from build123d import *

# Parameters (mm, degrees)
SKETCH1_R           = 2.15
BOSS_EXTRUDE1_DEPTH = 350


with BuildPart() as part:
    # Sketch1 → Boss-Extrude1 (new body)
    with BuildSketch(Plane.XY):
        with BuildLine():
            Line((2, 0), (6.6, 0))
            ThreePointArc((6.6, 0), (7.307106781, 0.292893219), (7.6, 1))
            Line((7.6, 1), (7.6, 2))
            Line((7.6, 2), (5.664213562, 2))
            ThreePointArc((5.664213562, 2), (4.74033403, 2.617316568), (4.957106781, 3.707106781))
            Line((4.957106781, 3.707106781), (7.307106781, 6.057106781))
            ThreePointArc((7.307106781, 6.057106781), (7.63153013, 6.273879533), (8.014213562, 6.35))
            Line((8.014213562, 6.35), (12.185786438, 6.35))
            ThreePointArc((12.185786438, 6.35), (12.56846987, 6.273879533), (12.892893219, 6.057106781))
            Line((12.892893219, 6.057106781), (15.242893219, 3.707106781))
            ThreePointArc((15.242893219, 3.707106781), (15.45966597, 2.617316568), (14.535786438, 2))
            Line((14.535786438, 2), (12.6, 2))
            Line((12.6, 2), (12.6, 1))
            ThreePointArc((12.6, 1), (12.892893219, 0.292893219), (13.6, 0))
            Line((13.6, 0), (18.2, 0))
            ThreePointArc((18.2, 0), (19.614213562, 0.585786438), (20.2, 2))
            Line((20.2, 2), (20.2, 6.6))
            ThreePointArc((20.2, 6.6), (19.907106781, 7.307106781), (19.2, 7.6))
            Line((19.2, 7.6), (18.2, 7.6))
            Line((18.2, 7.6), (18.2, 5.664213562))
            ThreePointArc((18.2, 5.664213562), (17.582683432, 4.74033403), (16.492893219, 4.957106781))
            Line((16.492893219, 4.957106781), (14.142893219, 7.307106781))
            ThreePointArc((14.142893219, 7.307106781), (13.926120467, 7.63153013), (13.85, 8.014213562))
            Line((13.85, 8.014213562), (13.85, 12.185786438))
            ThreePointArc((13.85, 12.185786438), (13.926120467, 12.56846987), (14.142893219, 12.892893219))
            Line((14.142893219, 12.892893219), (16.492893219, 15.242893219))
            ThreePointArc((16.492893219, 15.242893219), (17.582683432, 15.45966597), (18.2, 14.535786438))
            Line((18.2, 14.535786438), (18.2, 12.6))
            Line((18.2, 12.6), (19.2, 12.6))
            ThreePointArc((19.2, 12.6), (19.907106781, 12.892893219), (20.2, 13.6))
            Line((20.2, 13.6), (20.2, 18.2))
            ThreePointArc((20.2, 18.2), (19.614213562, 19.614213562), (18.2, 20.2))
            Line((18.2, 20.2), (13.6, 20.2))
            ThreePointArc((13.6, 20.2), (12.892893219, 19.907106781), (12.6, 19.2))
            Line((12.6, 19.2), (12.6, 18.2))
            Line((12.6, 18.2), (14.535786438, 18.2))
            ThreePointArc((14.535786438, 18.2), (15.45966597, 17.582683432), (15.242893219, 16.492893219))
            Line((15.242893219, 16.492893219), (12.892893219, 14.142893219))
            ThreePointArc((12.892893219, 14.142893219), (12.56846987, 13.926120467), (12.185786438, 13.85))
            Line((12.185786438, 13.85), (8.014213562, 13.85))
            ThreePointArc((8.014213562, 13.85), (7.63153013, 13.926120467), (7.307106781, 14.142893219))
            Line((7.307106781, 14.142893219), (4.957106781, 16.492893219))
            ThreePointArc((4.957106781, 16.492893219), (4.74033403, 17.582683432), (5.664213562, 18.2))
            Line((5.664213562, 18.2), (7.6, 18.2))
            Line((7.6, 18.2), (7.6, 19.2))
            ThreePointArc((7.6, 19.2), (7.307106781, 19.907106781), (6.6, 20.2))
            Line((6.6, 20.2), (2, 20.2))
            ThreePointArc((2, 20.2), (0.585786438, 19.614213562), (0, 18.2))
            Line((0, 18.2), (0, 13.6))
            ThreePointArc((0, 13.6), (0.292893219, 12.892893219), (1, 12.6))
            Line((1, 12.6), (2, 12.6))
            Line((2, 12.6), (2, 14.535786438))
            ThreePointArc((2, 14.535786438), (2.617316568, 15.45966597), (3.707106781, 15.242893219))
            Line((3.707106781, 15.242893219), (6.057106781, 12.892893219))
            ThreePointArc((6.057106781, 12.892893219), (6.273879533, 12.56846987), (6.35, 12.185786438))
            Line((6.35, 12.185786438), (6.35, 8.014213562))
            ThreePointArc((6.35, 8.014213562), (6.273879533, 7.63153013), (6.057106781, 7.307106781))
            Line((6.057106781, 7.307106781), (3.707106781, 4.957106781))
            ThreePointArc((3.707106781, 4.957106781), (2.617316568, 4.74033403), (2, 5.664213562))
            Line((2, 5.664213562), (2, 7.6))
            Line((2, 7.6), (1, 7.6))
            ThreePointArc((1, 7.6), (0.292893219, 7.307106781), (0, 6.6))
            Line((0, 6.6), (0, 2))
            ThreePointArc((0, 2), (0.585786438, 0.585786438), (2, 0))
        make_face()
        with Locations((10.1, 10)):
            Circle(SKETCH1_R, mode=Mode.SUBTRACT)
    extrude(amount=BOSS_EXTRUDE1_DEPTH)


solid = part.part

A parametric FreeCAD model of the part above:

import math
import FreeCAD as App
import Part
import Sketcher

V = App.Vector

doc = App.newDocument("Part")
body = doc.addObject("PartDesign::Body", "Body")

sketch1 = body.newObject("Sketcher::SketchObject", "Sketch")
sketch1.AttachmentSupport = (doc.getObject("XY_Plane"), [""])
sketch1.MapMode = "FlatFace"
sketch1.addGeometry(Part.LineSegment(V(2, 0, 0), V(6.6, 0, 0)), False)
sketch1.addGeometry(Part.ArcOfCircle(Part.Circle(V(6.6, 1, 0), V(0, 0, 1), 1), math.radians(-90), math.radians(0)), False)
sketch1.addGeometry(Part.LineSegment(V(7.6, 1, 0), V(7.6, 2, 0)), False)
sketch1.addGeometry(Part.LineSegment(V(7.6, 2, 0), V(5.664214, 2, 0)), False)
sketch1.addGeometry(Part.ArcOfCircle(Part.Circle(V(5.664214, 3, 0), V(0, 0, 1), 1), math.radians(135), math.radians(270)), False)
sketch1.addGeometry(Part.LineSegment(V(4.957107, 3.707107, 0), V(7.307107, 6.057107, 0)), False)
sketch1.addGeometry(Part.ArcOfCircle(Part.Circle(V(8.014214, 5.35, 0), V(0, 0, 1), 1), math.radians(90), math.radians(135)), False)
sketch1.addGeometry(Part.LineSegment(V(8.014214, 6.35, 0), V(12.185786, 6.35, 0)), False)
sketch1.addGeometry(Part.ArcOfCircle(Part.Circle(V(12.185786, 5.35, 0), V(0, 0, 1), 1), math.radians(45), math.radians(90)), False)
sketch1.addGeometry(Part.LineSegment(V(12.892893, 6.057107, 0), V(15.242893, 3.707107, 0)), False)
sketch1.addGeometry(Part.ArcOfCircle(Part.Circle(V(14.535786, 3, 0), V(0, 0, 1), 1), math.radians(-90), math.radians(45)), False)
sketch1.addGeometry(Part.LineSegment(V(14.535786, 2, 0), V(12.6, 2, 0)), False)
sketch1.addGeometry(Part.LineSegment(V(12.6, 2, 0), V(12.6, 1, 0)), False)
sketch1.addGeometry(Part.ArcOfCircle(Part.Circle(V(13.6, 1, 0), V(0, 0, 1), 1), math.radians(-180), math.radians(-90)), False)
sketch1.addGeometry(Part.LineSegment(V(13.6, 0, 0), V(18.2, 0, 0)), False)
sketch1.addGeometry(Part.ArcOfCircle(Part.Circle(V(18.2, 2, 0), V(0, 0, 1), 2), math.radians(-90), math.radians(0)), False)
sketch1.addGeometry(Part.LineSegment(V(20.2, 2, 0), V(20.2, 6.6, 0)), False)
sketch1.addGeometry(Part.ArcOfCircle(Part.Circle(V(19.2, 6.6, 0), V(0, 0, 1), 1), math.radians(0), math.radians(90)), False)
sketch1.addGeometry(Part.LineSegment(V(19.2, 7.6, 0), V(18.2, 7.6, 0)), False)
sketch1.addGeometry(Part.LineSegment(V(18.2, 7.6, 0), V(18.2, 5.664214, 0)), False)
sketch1.addGeometry(Part.ArcOfCircle(Part.Circle(V(17.2, 5.664214, 0), V(0, 0, 1), 1), math.radians(-135), math.radians(0)), False)
sketch1.addGeometry(Part.LineSegment(V(16.492893, 4.957107, 0), V(14.142893, 7.307107, 0)), False)
sketch1.addGeometry(Part.ArcOfCircle(Part.Circle(V(14.85, 8.014214, 0), V(0, 0, 1), 1), math.radians(180), math.radians(225)), False)
sketch1.addGeometry(Part.LineSegment(V(13.85, 8.014214, 0), V(13.85, 12.185786, 0)), False)
sketch1.addGeometry(Part.ArcOfCircle(Part.Circle(V(14.85, 12.185786, 0), V(0, 0, 1), 1), math.radians(135), math.radians(180)), False)
sketch1.addGeometry(Part.LineSegment(V(14.142893, 12.892893, 0), V(16.492893, 15.242893, 0)), False)
sketch1.addGeometry(Part.ArcOfCircle(Part.Circle(V(17.2, 14.535786, 0), V(0, 0, 1), 1), math.radians(0), math.radians(135)), False)
sketch1.addGeometry(Part.LineSegment(V(18.2, 14.535786, 0), V(18.2, 12.6, 0)), False)
sketch1.addGeometry(Part.LineSegment(V(18.2, 12.6, 0), V(19.2, 12.6, 0)), False)
sketch1.addGeometry(Part.ArcOfCircle(Part.Circle(V(19.2, 13.6, 0), V(0, 0, 1), 1), math.radians(-90), math.radians(0)), False)
sketch1.addGeometry(Part.LineSegment(V(20.2, 13.6, 0), V(20.2, 18.2, 0)), False)
sketch1.addGeometry(Part.ArcOfCircle(Part.Circle(V(18.2, 18.2, 0), V(0, 0, 1), 2), math.radians(0), math.radians(90)), False)
sketch1.addGeometry(Part.LineSegment(V(18.2, 20.2, 0), V(13.6, 20.2, 0)), False)
sketch1.addGeometry(Part.ArcOfCircle(Part.Circle(V(13.6, 19.2, 0), V(0, 0, 1), 1), math.radians(90), math.radians(180)), False)
sketch1.addGeometry(Part.LineSegment(V(12.6, 19.2, 0), V(12.6, 18.2, 0)), False)
sketch1.addGeometry(Part.LineSegment(V(12.6, 18.2, 0), V(14.535786, 18.2, 0)), False)
sketch1.addGeometry(Part.ArcOfCircle(Part.Circle(V(14.535786, 17.2, 0), V(0, 0, 1), 1), math.radians(-45), math.radians(90)), False)
sketch1.addGeometry(Part.LineSegment(V(15.242893, 16.492893, 0), V(12.892893, 14.142893, 0)), False)
sketch1.addGeometry(Part.ArcOfCircle(Part.Circle(V(12.185786, 14.85, 0), V(0, 0, 1), 1), math.radians(-90), math.radians(-45)), False)
sketch1.addGeometry(Part.LineSegment(V(12.185786, 13.85, 0), V(8.014214, 13.85, 0)), False)
sketch1.addGeometry(Part.ArcOfCircle(Part.Circle(V(8.014214, 14.85, 0), V(0, 0, 1), 1), math.radians(-135), math.radians(-90)), False)
sketch1.addGeometry(Part.LineSegment(V(7.307107, 14.142893, 0), V(4.957107, 16.492893, 0)), False)
sketch1.addGeometry(Part.ArcOfCircle(Part.Circle(V(5.664214, 17.2, 0), V(0, 0, 1), 1), math.radians(90), math.radians(225)), False)
sketch1.addGeometry(Part.LineSegment(V(5.664214, 18.2, 0), V(7.6, 18.2, 0)), False)
sketch1.addGeometry(Part.LineSegment(V(7.6, 18.2, 0), V(7.6, 19.2, 0)), False)
sketch1.addGeometry(Part.ArcOfCircle(Part.Circle(V(6.6, 19.2, 0), V(0, 0, 1), 1), math.radians(0), math.radians(90)), False)
sketch1.addGeometry(Part.LineSegment(V(6.6, 20.2, 0), V(2, 20.2, 0)), False)
sketch1.addGeometry(Part.ArcOfCircle(Part.Circle(V(2, 18.2, 0), V(0, 0, 1), 2), math.radians(90), math.radians(180)), False)
sketch1.addGeometry(Part.LineSegment(V(0, 18.2, 0), V(0, 13.6, 0)), False)
sketch1.addGeometry(Part.ArcOfCircle(Part.Circle(V(1, 13.6, 0), V(0, 0, 1), 1), math.radians(-180), math.radians(-90)), False)
sketch1.addGeometry(Part.LineSegment(V(1, 12.6, 0), V(2, 12.6, 0)), False)
sketch1.addGeometry(Part.LineSegment(V(2, 12.6, 0), V(2, 14.535786, 0)), False)
sketch1.addGeometry(Part.ArcOfCircle(Part.Circle(V(3, 14.535786, 0), V(0, 0, 1), 1), math.radians(45), math.radians(180)), False)
sketch1.addGeometry(Part.LineSegment(V(3.707107, 15.242893, 0), V(6.057107, 12.892893, 0)), False)
sketch1.addGeometry(Part.ArcOfCircle(Part.Circle(V(5.35, 12.185786, 0), V(0, 0, 1), 1), math.radians(0), math.radians(45)), False)
sketch1.addGeometry(Part.LineSegment(V(6.35, 12.185786, 0), V(6.35, 8.014214, 0)), False)
sketch1.addGeometry(Part.ArcOfCircle(Part.Circle(V(5.35, 8.014214, 0), V(0, 0, 1), 1), math.radians(-45), math.radians(0)), False)
sketch1.addGeometry(Part.LineSegment(V(6.057107, 7.307107, 0), V(3.707107, 4.957107, 0)), False)
sketch1.addGeometry(Part.ArcOfCircle(Part.Circle(V(3, 5.664214, 0), V(0, 0, 1), 1), math.radians(-180), math.radians(-45)), False)
sketch1.addGeometry(Part.LineSegment(V(2, 5.664214, 0), V(2, 7.6, 0)), False)
sketch1.addGeometry(Part.LineSegment(V(2, 7.6, 0), V(1, 7.6, 0)), False)
sketch1.addGeometry(Part.ArcOfCircle(Part.Circle(V(1, 6.6, 0), V(0, 0, 1), 1), math.radians(90), math.radians(180)), False)
sketch1.addGeometry(Part.LineSegment(V(0, 6.6, 0), V(0, 2, 0)), False)
sketch1.addGeometry(Part.ArcOfCircle(Part.Circle(V(2, 2, 0), V(0, 0, 1), 2), math.radians(-180), math.radians(-90)), False)
sketch1.addGeometry(Part.Circle(V(10.1, 10, 0), V(0, 0, 1), 2.15), False)
sketch1.addConstraint(Sketcher.Constraint("Tangent", 0, 2, 1, 1))
sketch1.addConstraint(Sketcher.Constraint("Tangent", 1, 2, 2, 1))
sketch1.addConstraint(Sketcher.Constraint("Coincident", 2, 2, 3, 1))
sketch1.addConstraint(Sketcher.Constraint("Tangent", 3, 2, 4, 2))
sketch1.addConstraint(Sketcher.Constraint("Tangent", 4, 1, 5, 1))
sketch1.addConstraint(Sketcher.Constraint("Tangent", 5, 2, 6, 2))
sketch1.addConstraint(Sketcher.Constraint("Tangent", 6, 1, 7, 1))
sketch1.addConstraint(Sketcher.Constraint("Tangent", 7, 2, 8, 2))
sketch1.addConstraint(Sketcher.Constraint("Tangent", 8, 1, 9, 1))
sketch1.addConstraint(Sketcher.Constraint("Tangent", 9, 2, 10, 2))
sketch1.addConstraint(Sketcher.Constraint("Tangent", 10, 1, 11, 1))
sketch1.addConstraint(Sketcher.Constraint("Coincident", 11, 2, 12, 1))
sketch1.addConstraint(Sketcher.Constraint("Tangent", 12, 2, 13, 1))
sketch1.addConstraint(Sketcher.Constraint("Tangent", 13, 2, 14, 1))
sketch1.addConstraint(Sketcher.Constraint("Tangent", 14, 2, 15, 1))
sketch1.addConstraint(Sketcher.Constraint("Tangent", 15, 2, 16, 1))
sketch1.addConstraint(Sketcher.Constraint("Tangent", 16, 2, 17, 1))
sketch1.addConstraint(Sketcher.Constraint("Tangent", 17, 2, 18, 1))
sketch1.addConstraint(Sketcher.Constraint("Coincident", 18, 2, 19, 1))
sketch1.addConstraint(Sketcher.Constraint("Tangent", 19, 2, 20, 2))
sketch1.addConstraint(Sketcher.Constraint("Tangent", 20, 1, 21, 1))
sketch1.addConstraint(Sketcher.Constraint("Tangent", 21, 2, 22, 2))
sketch1.addConstraint(Sketcher.Constraint("Tangent", 22, 1, 23, 1))
sketch1.addConstraint(Sketcher.Constraint("Tangent", 23, 2, 24, 2))
sketch1.addConstraint(Sketcher.Constraint("Tangent", 24, 1, 25, 1))
sketch1.addConstraint(Sketcher.Constraint("Tangent", 25, 2, 26, 2))
sketch1.addConstraint(Sketcher.Constraint("Tangent", 26, 1, 27, 1))
sketch1.addConstraint(Sketcher.Constraint("Coincident", 27, 2, 28, 1))
sketch1.addConstraint(Sketcher.Constraint("Tangent", 28, 2, 29, 1))
sketch1.addConstraint(Sketcher.Constraint("Tangent", 29, 2, 30, 1))
sketch1.addConstraint(Sketcher.Constraint("Tangent", 30, 2, 31, 1))
sketch1.addConstraint(Sketcher.Constraint("Tangent", 31, 2, 32, 1))
sketch1.addConstraint(Sketcher.Constraint("Tangent", 32, 2, 33, 1))
sketch1.addConstraint(Sketcher.Constraint("Tangent", 33, 2, 34, 1))
sketch1.addConstraint(Sketcher.Constraint("Coincident", 34, 2, 35, 1))
sketch1.addConstraint(Sketcher.Constraint("Tangent", 35, 2, 36, 2))
sketch1.addConstraint(Sketcher.Constraint("Tangent", 36, 1, 37, 1))
sketch1.addConstraint(Sketcher.Constraint("Tangent", 37, 2, 38, 2))
sketch1.addConstraint(Sketcher.Constraint("Tangent", 38, 1, 39, 1))
sketch1.addConstraint(Sketcher.Constraint("Tangent", 39, 2, 40, 2))
sketch1.addConstraint(Sketcher.Constraint("Tangent", 40, 1, 41, 1))
sketch1.addConstraint(Sketcher.Constraint("Tangent", 41, 2, 42, 2))
sketch1.addConstraint(Sketcher.Constraint("Tangent", 42, 1, 43, 1))
sketch1.addConstraint(Sketcher.Constraint("Coincident", 43, 2, 44, 1))
sketch1.addConstraint(Sketcher.Constraint("Tangent", 44, 2, 45, 1))
sketch1.addConstraint(Sketcher.Constraint("Tangent", 45, 2, 46, 1))
sketch1.addConstraint(Sketcher.Constraint("Tangent", 46, 2, 47, 1))
sketch1.addConstraint(Sketcher.Constraint("Tangent", 47, 2, 48, 1))
sketch1.addConstraint(Sketcher.Constraint("Tangent", 48, 2, 49, 1))
sketch1.addConstraint(Sketcher.Constraint("Tangent", 49, 2, 50, 1))
sketch1.addConstraint(Sketcher.Constraint("Coincident", 50, 2, 51, 1))
sketch1.addConstraint(Sketcher.Constraint("Tangent", 51, 2, 52, 2))
sketch1.addConstraint(Sketcher.Constraint("Tangent", 52, 1, 53, 1))
sketch1.addConstraint(Sketcher.Constraint("Tangent", 53, 2, 54, 2))
sketch1.addConstraint(Sketcher.Constraint("Tangent", 54, 1, 55, 1))
sketch1.addConstraint(Sketcher.Constraint("Tangent", 55, 2, 56, 2))
sketch1.addConstraint(Sketcher.Constraint("Tangent", 56, 1, 57, 1))
sketch1.addConstraint(Sketcher.Constraint("Tangent", 57, 2, 58, 2))
sketch1.addConstraint(Sketcher.Constraint("Tangent", 58, 1, 59, 1))
sketch1.addConstraint(Sketcher.Constraint("Coincident", 59, 2, 60, 1))
sketch1.addConstraint(Sketcher.Constraint("Tangent", 60, 2, 61, 1))
sketch1.addConstraint(Sketcher.Constraint("Tangent", 61, 2, 62, 1))
sketch1.addConstraint(Sketcher.Constraint("Tangent", 62, 2, 63, 1))
sketch1.addConstraint(Sketcher.Constraint("Tangent", 63, 2, 0, 1))
sketch1.addConstraint(Sketcher.Constraint("Horizontal", 0))
sketch1.addConstraint(Sketcher.Constraint("Vertical", 2))
sketch1.addConstraint(Sketcher.Constraint("Horizontal", 3))
sketch1.addConstraint(Sketcher.Constraint("Horizontal", 7))
sketch1.addConstraint(Sketcher.Constraint("Horizontal", 11))
sketch1.addConstraint(Sketcher.Constraint("Vertical", 12))
sketch1.addConstraint(Sketcher.Constraint("Horizontal", 14))
sketch1.addConstraint(Sketcher.Constraint("Vertical", 16))
sketch1.addConstraint(Sketcher.Constraint("Horizontal", 18))
sketch1.addConstraint(Sketcher.Constraint("Vertical", 19))
sketch1.addConstraint(Sketcher.Constraint("Vertical", 23))
sketch1.addConstraint(Sketcher.Constraint("Vertical", 27))
sketch1.addConstraint(Sketcher.Constraint("Horizontal", 28))
sketch1.addConstraint(Sketcher.Constraint("Vertical", 30))
sketch1.addConstraint(Sketcher.Constraint("Horizontal", 32))
sketch1.addConstraint(Sketcher.Constraint("Vertical", 34))
sketch1.addConstraint(Sketcher.Constraint("Horizontal", 35))
sketch1.addConstraint(Sketcher.Constraint("Horizontal", 39))
sketch1.addConstraint(Sketcher.Constraint("Horizontal", 43))
sketch1.addConstraint(Sketcher.Constraint("Vertical", 44))
sketch1.addConstraint(Sketcher.Constraint("Horizontal", 46))
sketch1.addConstraint(Sketcher.Constraint("Vertical", 48))
sketch1.addConstraint(Sketcher.Constraint("Horizontal", 50))
sketch1.addConstraint(Sketcher.Constraint("Vertical", 51))
sketch1.addConstraint(Sketcher.Constraint("Vertical", 55))
sketch1.addConstraint(Sketcher.Constraint("Vertical", 59))
sketch1.addConstraint(Sketcher.Constraint("Horizontal", 60))
sketch1.addConstraint(Sketcher.Constraint("Vertical", 62))
sketch1.addConstraint(Sketcher.Constraint("Equal", 1, 4))
sketch1.addConstraint(Sketcher.Constraint("Equal", 4, 6))
sketch1.addConstraint(Sketcher.Constraint("Equal", 6, 8))
sketch1.addConstraint(Sketcher.Constraint("Equal", 8, 10))
sketch1.addConstraint(Sketcher.Constraint("Equal", 10, 13))
sketch1.addConstraint(Sketcher.Constraint("Equal", 13, 17))
sketch1.addConstraint(Sketcher.Constraint("Equal", 17, 20))
sketch1.addConstraint(Sketcher.Constraint("Equal", 20, 22))
sketch1.addConstraint(Sketcher.Constraint("Equal", 22, 24))
sketch1.addConstraint(Sketcher.Constraint("Equal", 24, 26))
sketch1.addConstraint(Sketcher.Constraint("Equal", 26, 29))
sketch1.addConstraint(Sketcher.Constraint("Equal", 15, 31))
sketch1.addConstraint(Sketcher.Constraint("Equal", 29, 33))
sketch1.addConstraint(Sketcher.Constraint("Equal", 33, 36))
sketch1.addConstraint(Sketcher.Constraint("Equal", 36, 38))
sketch1.addConstraint(Sketcher.Constraint("Equal", 38, 40))
sketch1.addConstraint(Sketcher.Constraint("Equal", 40, 42))
sketch1.addConstraint(Sketcher.Constraint("Equal", 42, 45))
sketch1.addConstraint(Sketcher.Constraint("Equal", 31, 47))
sketch1.addConstraint(Sketcher.Constraint("Equal", 45, 49))
sketch1.addConstraint(Sketcher.Constraint("Equal", 49, 52))
sketch1.addConstraint(Sketcher.Constraint("Equal", 52, 54))
sketch1.addConstraint(Sketcher.Constraint("Equal", 54, 56))
sketch1.addConstraint(Sketcher.Constraint("Equal", 56, 58))
sketch1.addConstraint(Sketcher.Constraint("Equal", 58, 61))
sketch1.addConstraint(Sketcher.Constraint("Equal", 47, 63))
sketch1.addConstraint(Sketcher.Constraint("PointOnObject", 0, 2, -1))
sketch1.addConstraint(Sketcher.Constraint("PointOnObject", 13, 2, -1))
sketch1.addConstraint(Sketcher.Constraint("PointOnObject", 47, 2, -2))
sketch1.addConstraint(Sketcher.Constraint("PointOnObject", 61, 2, -2))
sketch1.addConstraint(Sketcher.Constraint("Perpendicular", 5, 9))
sketch1.addConstraint(Sketcher.Constraint("Parallel", 9, 21))
sketch1.addConstraint(Sketcher.Constraint("Perpendicular", 21, 25))
sketch1.addConstraint(Sketcher.Constraint("Parallel", 25, 37))
sketch1.addConstraint(Sketcher.Constraint("Perpendicular", 37, 41))
sketch1.addConstraint(Sketcher.Constraint("Parallel", 41, 53))
sketch1.addConstraint(Sketcher.Constraint("Perpendicular", 53, 57))
sketch1.addConstraint(Sketcher.Constraint("Horizontal", 4, 3, 10, 3))
sketch1.addConstraint(Sketcher.Constraint("Horizontal", 36, 3, 42, 3))
sketch1.addConstraint(Sketcher.Constraint("Horizontal", 33, 3, 45, 3))
sketch1.addConstraint(Sketcher.Constraint("Horizontal", 29, 3, 49, 3))
sketch1.addConstraint(Sketcher.Constraint("Horizontal", 26, 3, 52, 3))
sketch1.addConstraint(Sketcher.Constraint("Horizontal", 24, 3, 54, 3))
sketch1.addConstraint(Sketcher.Constraint("Horizontal", 22, 3, 56, 3))
sketch1.addConstraint(Sketcher.Constraint("Horizontal", 20, 3, 58, 3))
sketch1.addConstraint(Sketcher.Constraint("Horizontal", 17, 3, 61, 3))
sketch1.addConstraint(Sketcher.Constraint("Horizontal", 63, 3, 2, 2))
sketch1.addConstraint(Sketcher.Constraint("Horizontal", 5, 2, 8, 1))
sketch1.addConstraint(Sketcher.Constraint("Horizontal", 30, 2, 34, 2))
sketch1.addConstraint(Sketcher.Constraint("Vertical", 20, 3, 26, 3))
sketch1.addConstraint(Sketcher.Constraint("Vertical", 17, 3, 29, 3))
sketch1.addConstraint(Sketcher.Constraint("Vertical", 13, 3, 33, 3))
sketch1.addConstraint(Sketcher.Constraint("Vertical", 10, 3, 36, 3))
sketch1.addConstraint(Sketcher.Constraint("Vertical", 8, 3, 38, 3))
sketch1.addConstraint(Sketcher.Constraint("Vertical", 6, 3, 40, 3))
sketch1.addConstraint(Sketcher.Constraint("Vertical", 1, 3, 45, 3))
sketch1.addConstraint(Sketcher.Constraint("Vertical", 14, 2, 18, 2))
sketch1.addConstraint(Sketcher.Constraint("Vertical", 46, 2, 50, 2))
sketch1.addConstraint(Sketcher.Constraint("Equal", 3, 11))
sketch1.addConstraint(Sketcher.Constraint("Equal", 0, 14))
sketch1.addConstraint(Sketcher.Constraint("Equal", 46, 16))
sketch1.addConstraint(Sketcher.Constraint("Equal", 43, 19))
sketch1.addConstraint(Sketcher.Constraint("Equal", 39, 23))
sketch1.addConstraint(Sketcher.Constraint("Equal", 19, 27))
sketch1.addConstraint(Sketcher.Constraint("Equal", 16, 30))
sketch1.addConstraint(Sketcher.Constraint("Equal", 9, 21))
sketch1.addConstraint(Sketcher.Constraint("Radius", 1, 1.0))
sketch1.addConstraint(Sketcher.Constraint("Radius", 15, 2.0))
sketch1.addConstraint(Sketcher.Constraint("Diameter", 64, 4.3))
sketch1.addConstraint(Sketcher.Constraint("DistanceX", 0, 1, 0, 2, 4.6))
sketch1.addConstraint(Sketcher.Constraint("DistanceY", -1, 1, 64, 3, 10.0))
sketch1.addConstraint(Sketcher.Constraint("DistanceX", -1, 1, 13, 3, 13.6))
sketch1.addConstraint(Sketcher.Constraint("DistanceX", -1, 1, 64, 3, 10.1))
sketch1.addConstraint(Sketcher.Constraint("DistanceY", -1, 1, 6, 3, 5.35))
sketch1.addConstraint(Sketcher.Constraint("DistanceX", 3, 2, 3, 1, 1.935786))
pad1 = body.newObject("PartDesign::Pad", "Pad")
pad1.Profile = sketch1
pad1.Length = 350

doc.recompute()
